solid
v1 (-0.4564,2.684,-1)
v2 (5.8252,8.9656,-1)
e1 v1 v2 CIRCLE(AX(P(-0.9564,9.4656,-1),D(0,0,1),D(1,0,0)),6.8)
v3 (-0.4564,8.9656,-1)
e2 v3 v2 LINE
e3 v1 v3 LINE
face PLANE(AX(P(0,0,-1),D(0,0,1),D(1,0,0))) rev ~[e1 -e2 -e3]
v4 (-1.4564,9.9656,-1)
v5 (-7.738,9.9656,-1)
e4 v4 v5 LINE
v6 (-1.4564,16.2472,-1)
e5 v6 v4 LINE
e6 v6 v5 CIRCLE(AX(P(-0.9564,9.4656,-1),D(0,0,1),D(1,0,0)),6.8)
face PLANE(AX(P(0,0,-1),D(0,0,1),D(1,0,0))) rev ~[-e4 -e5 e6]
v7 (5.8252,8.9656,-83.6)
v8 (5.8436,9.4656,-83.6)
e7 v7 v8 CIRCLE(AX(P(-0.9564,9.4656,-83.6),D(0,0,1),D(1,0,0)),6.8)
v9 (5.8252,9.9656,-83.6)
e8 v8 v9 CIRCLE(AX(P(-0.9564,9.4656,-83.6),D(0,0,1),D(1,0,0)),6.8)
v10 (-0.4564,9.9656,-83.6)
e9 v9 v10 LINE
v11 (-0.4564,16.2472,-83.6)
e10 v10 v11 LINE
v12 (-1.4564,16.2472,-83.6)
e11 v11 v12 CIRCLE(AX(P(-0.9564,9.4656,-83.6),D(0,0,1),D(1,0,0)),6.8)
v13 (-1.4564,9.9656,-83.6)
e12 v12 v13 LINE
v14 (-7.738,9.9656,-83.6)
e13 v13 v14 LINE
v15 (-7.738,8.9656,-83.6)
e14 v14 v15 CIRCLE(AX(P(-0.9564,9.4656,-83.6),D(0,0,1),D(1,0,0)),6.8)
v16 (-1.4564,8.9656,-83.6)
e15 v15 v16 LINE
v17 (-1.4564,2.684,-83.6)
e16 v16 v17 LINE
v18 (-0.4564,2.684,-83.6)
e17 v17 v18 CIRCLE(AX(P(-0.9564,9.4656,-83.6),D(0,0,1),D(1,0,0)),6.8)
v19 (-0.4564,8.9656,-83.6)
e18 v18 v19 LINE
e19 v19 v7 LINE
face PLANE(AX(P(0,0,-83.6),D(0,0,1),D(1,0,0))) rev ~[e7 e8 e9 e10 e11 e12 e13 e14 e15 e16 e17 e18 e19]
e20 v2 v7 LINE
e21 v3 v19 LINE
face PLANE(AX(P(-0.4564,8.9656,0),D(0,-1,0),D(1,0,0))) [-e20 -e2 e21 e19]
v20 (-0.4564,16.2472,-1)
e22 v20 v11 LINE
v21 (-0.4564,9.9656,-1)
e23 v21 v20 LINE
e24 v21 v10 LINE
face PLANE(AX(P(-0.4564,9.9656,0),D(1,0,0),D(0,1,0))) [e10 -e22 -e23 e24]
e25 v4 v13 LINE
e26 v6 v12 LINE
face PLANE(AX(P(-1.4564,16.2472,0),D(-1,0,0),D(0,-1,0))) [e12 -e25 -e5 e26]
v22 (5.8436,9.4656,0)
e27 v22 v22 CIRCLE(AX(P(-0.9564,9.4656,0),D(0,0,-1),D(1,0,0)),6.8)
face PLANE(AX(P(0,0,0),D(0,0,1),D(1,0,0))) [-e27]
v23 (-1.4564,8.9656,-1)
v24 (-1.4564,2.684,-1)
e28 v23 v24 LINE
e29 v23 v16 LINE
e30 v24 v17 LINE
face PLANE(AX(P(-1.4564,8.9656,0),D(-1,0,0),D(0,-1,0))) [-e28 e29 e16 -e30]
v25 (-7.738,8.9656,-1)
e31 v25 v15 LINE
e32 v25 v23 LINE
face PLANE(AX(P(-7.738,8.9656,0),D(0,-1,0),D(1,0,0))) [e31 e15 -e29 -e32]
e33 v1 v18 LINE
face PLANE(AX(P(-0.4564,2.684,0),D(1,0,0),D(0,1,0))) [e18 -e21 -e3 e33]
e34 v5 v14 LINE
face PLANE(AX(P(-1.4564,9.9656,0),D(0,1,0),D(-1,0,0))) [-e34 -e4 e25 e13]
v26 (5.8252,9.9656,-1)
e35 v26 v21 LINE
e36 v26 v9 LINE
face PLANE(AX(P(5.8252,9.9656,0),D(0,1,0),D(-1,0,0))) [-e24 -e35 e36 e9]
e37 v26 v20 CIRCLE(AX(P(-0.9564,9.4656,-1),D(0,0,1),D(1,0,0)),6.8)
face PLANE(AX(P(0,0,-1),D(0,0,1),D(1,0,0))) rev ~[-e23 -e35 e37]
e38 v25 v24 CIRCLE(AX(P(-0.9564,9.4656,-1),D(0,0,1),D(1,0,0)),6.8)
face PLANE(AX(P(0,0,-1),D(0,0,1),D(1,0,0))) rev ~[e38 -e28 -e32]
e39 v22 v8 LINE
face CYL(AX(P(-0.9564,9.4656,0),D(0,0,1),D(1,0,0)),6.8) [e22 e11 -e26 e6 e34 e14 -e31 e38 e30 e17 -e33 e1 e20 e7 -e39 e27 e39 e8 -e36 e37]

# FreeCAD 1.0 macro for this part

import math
import FreeCAD as App
import Part
import Sketcher

V = App.Vector
Q = App.Units.Quantity

doc = App.newDocument("Part")
body = doc.addObject("PartDesign::Body", "Body")

# Sketch on XY plane
sketch1 = body.newObject("Sketcher::SketchObject", "Sketch")
sketch1.AttachmentSupport = (doc.getObject("XY_Plane"), [""])
sketch1.MapMode = "FlatFace"
sketch1.addGeometry([
    Part.ArcOfCircle(Part.Circle(V(-1, 9.5, 0), V(0, 0, 1), 6.8), math.radians(85.78), math.radians(94.22)),  # 0
    Part.LineSegment(V(-1.5, 16.2, 0), V(-1.5, 10, 0)),  # 1
    Part.LineSegment(V(-1.5, 10, 0), V(-7.7, 10, 0)),  # 2
    Part.ArcOfCircle(Part.Circle(V(-1, 9.5, 0), V(0, 0, 1), 6.8), math.radians(175.78), math.radians(184.22)),  # 3
    Part.LineSegment(V(-7.7, 9, 0), V(-1.5, 9, 0)),  # 4
    Part.LineSegment(V(-1.5, 9, 0), V(-1.5, 2.7, 0)),  # 5
    Part.ArcOfCircle(Part.Circle(V(-1, 9.5, 0), V(0, 0, 1), 6.8), math.radians(-94.22), math.radians(-85.78)),  # 6
    Part.LineSegment(V(-0.5, 2.7, 0), V(-0.5, 9, 0)),  # 7
    Part.LineSegment(V(-0.5, 9, 0), V(5.8, 9, 0)),  # 8
    Part.ArcOfCircle(Part.Circle(V(-1, 9.5, 0), V(0, 0, 1), 6.8), math.radians(-4.22), math.radians(4.22)),  # 9
    Part.LineSegment(V(5.8, 10, 0), V(-0.5, 10, 0)),  # 10
    Part.LineSegment(V(-0.5, 10, 0), V(-0.5, 16.2, 0)),  # 11
], False)
sketch1.addConstraint([
    Sketcher.Constraint("Coincident", 0, 2, 1, 1),
    Sketcher.Constraint("Coincident", 1, 2, 2, 1),
    Sketcher.Constraint("Coincident", 2, 2, 3, 1),
    Sketcher.Constraint("Coincident", 3, 2, 4, 1),
    Sketcher.Constraint("Coincident", 4, 2, 5, 1),
    Sketcher.Constraint("Coincident", 5, 2, 6, 1),
    Sketcher.Constraint("Coincident", 6, 2, 7, 1),
    Sketcher.Constraint("Coincident", 7, 2, 8, 1),
    Sketcher.Constraint("Coincident", 8, 2, 9, 1),
    Sketcher.Constraint("Coincident", 9, 2, 10, 1),
    Sketcher.Constraint("Coincident", 10, 2, 11, 1),
    Sketcher.Constraint("Coincident", 11, 2, 0, 1),
    Sketcher.Constraint("Vertical", 1),
    Sketcher.Constraint("Horizontal", 2),
    Sketcher.Constraint("Horizontal", 4),
    Sketcher.Constraint("Vertical", 5),
    Sketcher.Constraint("Vertical", 7),
    Sketcher.Constraint("Horizontal", 8),
    Sketcher.Constraint("Horizontal", 10),
    Sketcher.Constraint("Vertical", 11),
    Sketcher.Constraint("Coincident", 3, 3, 0, 3),
    Sketcher.Constraint("Coincident", 6, 3, 0, 3),
    Sketcher.Constraint("Coincident", 9, 3, 0, 3),
    Sketcher.Constraint("Equal", 0, 3),
    Sketcher.Constraint("Equal", 3, 6),
    Sketcher.Constraint("Equal", 6, 9),
    Sketcher.Constraint("Horizontal", 5, 2, 6, 2),
    Sketcher.Constraint("Horizontal", 4, 2, 7, 2),
    Sketcher.Constraint("Horizontal", 2, 2, 9, 2),
    Sketcher.Constraint("Horizontal", 0, 2, 11, 2),
    Sketcher.Constraint("Vertical", 2, 2, 3, 2),
    Sketcher.Constraint("Vertical", 1, 2, 4, 2),
    Sketcher.Constraint("Equal", 10, 1),
    Sketcher.Constraint("Radius", 0, Q("6.8 mm")),
    Sketcher.Constraint("DistanceY", 3, 2, 2, 2, Q("1 mm")),
    Sketcher.Constraint("DistanceX", 2, 2, -1, 1, Q("7.738 mm")),
    Sketcher.Constraint("DistanceY", -1, 1, 5, 2, Q("2.684 mm")),
])
pad1 = body.newObject("PartDesign::Pad", "Pad")
pad1.Profile = sketch1
pad1.Length = 83.6
pad1.Reversed = True

# Sketch on XY plane
sketch2 = body.newObject("Sketcher::SketchObject", "Sketch001")
sketch2.AttachmentSupport = (doc.getObject("XY_Plane"), [""])
sketch2.MapMode = "FlatFace"
sketch2.addGeometry([
    Part.LineSegment(V(-1, 10, 0), V(-1, 16, 0)),  # 0
    Part.ArcOfCircle(Part.Circle(V(-1, 9, 0), V(0, 0, 1), 7), math.radians(94), math.radians(176)),  # 1
    Part.LineSegment(V(-8, 10, 0), V(-1, 10, 0)),  # 2
    Part.ArcOfCircle(Part.Circle(V(-1, 9, 0), V(0, 0, 1), 7), math.radians(4), math.radians(86)),  # 3
    Part.LineSegment(V(0, 16, 0), V(0, 10, 0)),  # 4
    Part.LineSegment(V(0, 10, 0), V(6, 10, 0)),  # 5
    Part.LineSegment(V(-1, 9, 0), V(-8, 9, 0)),  # 6
    Part.ArcOfCircle(Part.Circle(V(-1, 9, 0), V(0, 0, 1), 7), math.radians(-176), math.radians(-94)),  # 7
    Part.LineSegment(V(-1, 3, 0), V(-1, 9, 0)),  # 8
    Part.ArcOfCircle(Part.Circle(V(-1, 9, 0), V(0, 0, 1), 7), math.radians(-86), math.radians(-4)),  # 9
    Part.LineSegment(V(6, 9, 0), V(0, 9, 0)),  # 10
    Part.LineSegment(V(0, 9, 0), V(0, 3, 0)),  # 11
], False)
sketch2.addConstraint([
    Sketcher.Constraint("Coincident", 0, 2, 1, 1),
    Sketcher.Constraint("Coincident", 1, 2, 2, 1),
    Sketcher.Constraint("Coincident", 2, 2, 0, 1),
    Sketcher.Constraint("Coincident", 3, 2, 4, 1),
    Sketcher.Constraint("Coincident", 4, 2, 5, 1),
    Sketcher.Constraint("Coincident", 5, 2, 3, 1),
    Sketcher.Constraint("Coincident", 6, 2, 7, 1),
    Sketcher.Constraint("Coincident", 7, 2, 8, 1),
    Sketcher.Constraint("Coincident", 8, 2, 6, 1),
    Sketcher.Constraint("Coincident", 9, 2, 10, 1),
    Sketcher.Constraint("Coincident", 10, 2, 11, 1),
    Sketcher.Constraint("Coincident", 11, 2, 9, 1),
    Sketcher.Constraint("Vertical", 0),
    Sketcher.Constraint("Horizontal", 2),
    Sketcher.Constraint("Vertical", 4),
    Sketcher.Constraint("Horizontal", 5),
    Sketcher.Constraint("Horizontal", 6),
    Sketcher.Constraint("Vertical", 8),
    Sketcher.Constraint("Horizontal", 10),
    Sketcher.Constraint("Vertical", 11),
    Sketcher.Constraint("Coincident", 3, 3, 1, 3),
    Sketcher.Constraint("Coincident", 7, 3, 1, 3),
    Sketcher.Constraint("Coincident", 9, 3, 1, 3),
    Sketcher.Constraint("Equal", 1, 3),
    Sketcher.Constraint("Equal", 3, 7),
    Sketcher.Constraint("Equal", 7, 9),
    Sketcher.Constraint("Horizontal", 0, 2, 3, 2),
    Sketcher.Constraint("Horizontal", 2, 2, 4, 2),
    Sketcher.Constraint("Horizontal", 8, 2, 9, 2),
    Sketcher.Constraint("Horizontal", 7, 2, 11, 2),
    Sketcher.Constraint("Vertical", 1, 2, 6, 2),
    Sketcher.Constraint("Vertical", 2, 2, 7, 2),
    Sketcher.Constraint("Equal", 10, 0),
    Sketcher.Constraint("Radius", 1, Q("6.8 mm")),
    Sketcher.Constraint("DistanceX", 0, 2, 3, 2, Q("1 mm")),
    Sketcher.Constraint("DistanceX", 1, 2, -1, 1, Q("7.738 mm")),
    Sketcher.Constraint("DistanceY", -1, 1, 7, 2, Q("2.684 mm")),
])
pad2 = body.newObject("PartDesign::Pad", "Pad001")
pad2.Profile = sketch2
pad2.Length = 1
pad2.Reversed = True

doc.recompute()
